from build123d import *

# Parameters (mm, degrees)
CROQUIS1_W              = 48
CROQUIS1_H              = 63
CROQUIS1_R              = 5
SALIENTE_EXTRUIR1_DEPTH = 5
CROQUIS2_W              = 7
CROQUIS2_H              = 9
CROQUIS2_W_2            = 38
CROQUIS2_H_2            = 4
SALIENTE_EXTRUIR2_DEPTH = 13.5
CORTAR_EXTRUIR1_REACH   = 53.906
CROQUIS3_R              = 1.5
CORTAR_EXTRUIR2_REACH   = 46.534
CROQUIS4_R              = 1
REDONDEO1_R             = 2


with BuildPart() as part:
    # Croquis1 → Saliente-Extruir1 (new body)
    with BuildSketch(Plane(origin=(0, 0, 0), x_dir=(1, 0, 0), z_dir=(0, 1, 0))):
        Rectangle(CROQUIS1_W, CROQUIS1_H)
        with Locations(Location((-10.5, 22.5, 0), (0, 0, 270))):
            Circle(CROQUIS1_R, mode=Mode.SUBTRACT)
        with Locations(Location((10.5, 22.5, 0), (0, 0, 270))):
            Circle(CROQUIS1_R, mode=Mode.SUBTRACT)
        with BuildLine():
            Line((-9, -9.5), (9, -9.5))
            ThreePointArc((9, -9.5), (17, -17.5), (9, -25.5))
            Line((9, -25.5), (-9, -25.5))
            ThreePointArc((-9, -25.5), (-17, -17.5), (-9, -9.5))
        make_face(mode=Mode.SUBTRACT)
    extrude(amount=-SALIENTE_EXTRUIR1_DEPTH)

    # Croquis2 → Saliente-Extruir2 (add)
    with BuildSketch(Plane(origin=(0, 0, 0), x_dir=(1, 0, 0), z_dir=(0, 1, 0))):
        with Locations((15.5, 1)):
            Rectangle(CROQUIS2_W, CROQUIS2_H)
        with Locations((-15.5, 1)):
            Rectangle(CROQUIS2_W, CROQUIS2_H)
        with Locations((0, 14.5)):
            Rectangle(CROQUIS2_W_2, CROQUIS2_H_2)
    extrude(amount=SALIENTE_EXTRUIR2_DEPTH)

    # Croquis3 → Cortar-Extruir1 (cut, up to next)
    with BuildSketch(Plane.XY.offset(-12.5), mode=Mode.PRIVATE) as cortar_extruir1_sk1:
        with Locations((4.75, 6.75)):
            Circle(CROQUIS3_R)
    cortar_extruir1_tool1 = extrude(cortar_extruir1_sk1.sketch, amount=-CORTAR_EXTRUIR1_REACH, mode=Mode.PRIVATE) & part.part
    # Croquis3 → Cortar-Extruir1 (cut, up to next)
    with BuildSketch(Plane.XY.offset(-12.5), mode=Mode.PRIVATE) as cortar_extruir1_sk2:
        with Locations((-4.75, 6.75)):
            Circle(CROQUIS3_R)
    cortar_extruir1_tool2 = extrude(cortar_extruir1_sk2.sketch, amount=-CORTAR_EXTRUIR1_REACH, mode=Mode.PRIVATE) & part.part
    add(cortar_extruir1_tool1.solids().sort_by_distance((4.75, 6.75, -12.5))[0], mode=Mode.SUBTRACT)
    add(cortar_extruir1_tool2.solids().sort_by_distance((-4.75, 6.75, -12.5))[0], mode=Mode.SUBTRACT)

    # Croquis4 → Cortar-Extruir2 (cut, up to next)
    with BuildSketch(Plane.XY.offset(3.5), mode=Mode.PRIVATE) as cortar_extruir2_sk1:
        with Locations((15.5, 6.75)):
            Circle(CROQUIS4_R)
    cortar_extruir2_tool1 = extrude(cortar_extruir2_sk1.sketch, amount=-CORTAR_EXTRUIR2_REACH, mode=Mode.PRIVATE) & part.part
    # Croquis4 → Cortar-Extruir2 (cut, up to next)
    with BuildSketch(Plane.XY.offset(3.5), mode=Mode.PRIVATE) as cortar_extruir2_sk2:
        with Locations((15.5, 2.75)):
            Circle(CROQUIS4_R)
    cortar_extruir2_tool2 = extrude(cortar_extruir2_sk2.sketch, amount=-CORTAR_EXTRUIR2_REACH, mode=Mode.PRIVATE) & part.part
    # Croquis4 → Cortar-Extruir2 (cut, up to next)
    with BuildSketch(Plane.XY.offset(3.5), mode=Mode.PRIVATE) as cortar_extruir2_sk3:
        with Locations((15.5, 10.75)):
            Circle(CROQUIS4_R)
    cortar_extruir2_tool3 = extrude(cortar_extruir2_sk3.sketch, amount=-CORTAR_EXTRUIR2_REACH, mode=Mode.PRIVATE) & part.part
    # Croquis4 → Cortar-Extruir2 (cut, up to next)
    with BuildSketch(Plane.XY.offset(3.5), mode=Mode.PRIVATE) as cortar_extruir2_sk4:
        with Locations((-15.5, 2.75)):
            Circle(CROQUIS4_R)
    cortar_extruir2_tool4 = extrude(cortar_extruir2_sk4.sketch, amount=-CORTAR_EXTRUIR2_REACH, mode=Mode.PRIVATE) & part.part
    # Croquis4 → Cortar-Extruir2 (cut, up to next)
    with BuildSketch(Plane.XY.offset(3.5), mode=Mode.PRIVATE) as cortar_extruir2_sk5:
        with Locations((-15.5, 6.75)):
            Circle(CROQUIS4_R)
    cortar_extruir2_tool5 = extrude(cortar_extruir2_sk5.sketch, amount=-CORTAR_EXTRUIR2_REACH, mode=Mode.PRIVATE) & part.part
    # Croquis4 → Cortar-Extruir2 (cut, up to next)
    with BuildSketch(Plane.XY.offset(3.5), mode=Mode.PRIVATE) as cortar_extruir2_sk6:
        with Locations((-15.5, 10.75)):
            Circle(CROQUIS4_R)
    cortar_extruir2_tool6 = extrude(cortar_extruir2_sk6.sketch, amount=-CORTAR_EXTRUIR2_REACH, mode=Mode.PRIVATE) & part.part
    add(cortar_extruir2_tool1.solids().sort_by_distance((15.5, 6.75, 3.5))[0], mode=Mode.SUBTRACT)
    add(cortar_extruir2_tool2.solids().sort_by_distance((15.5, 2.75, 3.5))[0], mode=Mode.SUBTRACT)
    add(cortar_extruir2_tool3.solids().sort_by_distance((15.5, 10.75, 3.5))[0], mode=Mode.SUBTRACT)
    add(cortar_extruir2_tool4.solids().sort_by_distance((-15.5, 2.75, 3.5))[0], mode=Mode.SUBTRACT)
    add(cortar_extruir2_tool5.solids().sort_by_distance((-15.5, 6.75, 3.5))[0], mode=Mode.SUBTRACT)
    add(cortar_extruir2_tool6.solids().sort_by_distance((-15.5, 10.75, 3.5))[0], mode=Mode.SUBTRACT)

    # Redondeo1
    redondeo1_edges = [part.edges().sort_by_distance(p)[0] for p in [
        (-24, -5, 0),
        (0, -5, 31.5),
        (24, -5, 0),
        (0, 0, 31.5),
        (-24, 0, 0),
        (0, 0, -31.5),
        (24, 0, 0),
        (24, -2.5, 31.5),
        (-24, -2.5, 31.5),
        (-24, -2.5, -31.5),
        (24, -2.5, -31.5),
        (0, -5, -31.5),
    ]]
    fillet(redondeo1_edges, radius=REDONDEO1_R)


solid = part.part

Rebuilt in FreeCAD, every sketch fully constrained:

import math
import FreeCAD as App
import Part
import Sketcher

V = App.Vector


def edges_at(feature, points):
    """Names of the edges that pass closest to the given points."""
    edges = feature.Shape.Edges
    near = lambda p: min(range(len(edges)), key=lambda i: edges[i].distToShape(Part.Vertex(*p))[0])
    return sorted({f"Edge{near(p) + 1}" for p in points})

doc = App.newDocument("Part")
body = doc.addObject("PartDesign::Body", "Body")

# Sketch on XZ plane
sketch1 = body.newObject("Sketcher::SketchObject", "Sketch")
sketch1.AttachmentSupport = (doc.getObject("XZ_Plane"), [""])
sketch1.MapMode = "FlatFace"
sketch1.addGeometry(Part.LineSegment(V(-24, -32, 0), V(-24, 32, 0)), False)
sketch1.addGeometry(Part.LineSegment(V(-24, 32, 0), V(24, 32, 0)), False)
sketch1.addGeometry(Part.LineSegment(V(24, 32, 0), V(24, -32, 0)), False)
sketch1.addGeometry(Part.LineSegment(V(24, -32, 0), V(-24, -32, 0)), False)
sketch1.addGeometry(Part.ArcOfCircle(Part.Circle(V(-9, 18, 0), V(0, 0, 1), 8), math.radians(90), math.radians(270)), False)
sketch1.addGeometry(Part.LineSegment(V(-9, 10, 0), V(9, 10, 0)), False)
sketch1.addGeometry(Part.ArcOfCircle(Part.Circle(V(9, 18, 0), V(0, 0, 1), 8), math.radians(-90), math.radians(90)), False)
sketch1.addGeometry(Part.LineSegment(V(9, 26, 0), V(-9, 26, 0)), False)
sketch1.addGeometry(Part.Circle(V(-10, -22, 0), V(0, 0, 1), 5), False)
sketch1.addGeometry(Part.Circle(V(10, -22, 0), V(0, 0, 1), 5), False)
sketch1.addConstraint(Sketcher.Constraint("Coincident", 0, 2, 1, 1))
sketch1.addConstraint(Sketcher.Constraint("Coincident", 1, 2, 2, 1))
sketch1.addConstraint(Sketcher.Constraint("Coincident", 2, 2, 3, 1))
sketch1.addConstraint(Sketcher.Constraint("Coincident", 3, 2, 0, 1))
sketch1.addConstraint(Sketcher.Constraint("Tangent", 4, 2, 5, 1))
sketch1.addConstraint(Sketcher.Constraint("Tangent", 5, 2, 6, 1))
sketch1.addConstraint(Sketcher.Constraint("Tangent", 6, 2, 7, 1))
sketch1.addConstraint(Sketcher.Constraint("Tangent", 7, 2, 4, 1))
sketch1.addConstraint(Sketcher.Constraint("Vertical", 0))
sketch1.addConstraint(Sketcher.Constraint("Horizontal", 1))
sketch1.addConstraint(Sketcher.Constraint("Vertical", 2))
sketch1.addConstraint(Sketcher.Constraint("Horizontal", 3))
sketch1.addConstraint(Sketcher.Constraint("Horizontal", 5))
sketch1.addConstraint(Sketcher.Constraint("Horizontal", 7))
sketch1.addConstraint(Sketcher.Constraint("Equal", 8, 9))
sketch1.addConstraint(Sketcher.Constraint("Symmetric", 0, 2, 2, 2, -1, 1))
sketch1.addConstraint(Sketcher.Constraint("Symmetric", 8, 3, 9, 3, -2))
sketch1.addConstraint(Sketcher.Constraint("Diameter", 8, 10.0))
sketch1.addConstraint(Sketcher.Constraint("Radius", 4, 8.0))
sketch1.addConstraint(Sketcher.Constraint("DistanceX", 1, 1, 1, 2, 48.0))
sketch1.addConstraint(Sketcher.Constraint("DistanceX", 5, 1, 5, 2, 18.0))
sketch1.addConstraint(Sketcher.Constraint("DistanceY", 0, 1, 0, 2, 63.0))
sketch1.addConstraint(Sketcher.Constraint("DistanceX", 4, 3, -1, 1, 9.0))
sketch1.addConstraint(Sketcher.Constraint("DistanceY", 8, 3, 4, 3, 40.0))
sketch1.addConstraint(Sketcher.Constraint("DistanceX", 8, 3, 9, 3, 21.0))
sketch1.addConstraint(Sketcher.Constraint("DistanceY", 4, 3, 0, 2, 14.0))
pad1 = body.newObject("PartDesign::Pad", "Pad")
pad1.Profile = sketch1
pad1.Length = 5

# Sketch on XZ plane
sketch2 = body.newObject("Sketcher::SketchObject", "Sketch001")
sketch2.AttachmentSupport = (doc.getObject("XZ_Plane"), [""])
sketch2.MapMode = "FlatFace"
sketch2.addGeometry(Part.LineSegment(V(12, -5.5, 0), V(12, 3.5, 0)), False)
sketch2.addGeometry(Part.LineSegment(V(12, 3.5, 0), V(19, 3.5, 0)), False)
sketch2.addGeometry(Part.LineSegment(V(19, 3.5, 0), V(19, -5.5, 0)), False)
sketch2.addGeometry(Part.LineSegment(V(19, -5.5, 0), V(12, -5.5, 0)), False)
sketch2.addGeometry(Part.LineSegment(V(-19, -5.5, 0), V(-19, 3.5, 0)), False)
sketch2.addGeometry(Part.LineSegment(V(-19, 3.5, 0), V(-12, 3.5, 0)), False)
sketch2.addGeometry(Part.LineSegment(V(-12, 3.5, 0), V(-12, -5.5, 0)), False)
sketch2.addGeometry(Part.LineSegment(V(-12, -5.5, 0), V(-19, -5.5, 0)), False)
sketch2.addGeometry(Part.LineSegment(V(-19, -16.5, 0), V(-19, -12.5, 0)), False)
sketch2.addGeometry(Part.LineSegment(V(-19, -12.5, 0), V(19, -12.5, 0)), False)
sketch2.addGeometry(Part.LineSegment(V(19, -12.5, 0), V(19, -16.5, 0)), False)
sketch2.addGeometry(Part.LineSegment(V(19, -16.5, 0), V(-19, -16.5, 0)), False)
sketch2.addConstraint(Sketcher.Constraint("Coincident", 0, 2, 1, 1))
sketch2.addConstraint(Sketcher.Constraint("Coincident", 1, 2, 2, 1))
sketch2.addConstraint(Sketcher.Constraint("Coincident", 2, 2, 3, 1))
sketch2.addConstraint(Sketcher.Constraint("Coincident", 3, 2, 0, 1))
sketch2.addConstraint(Sketcher.Constraint("Coincident", 4, 2, 5, 1))
sketch2.addConstraint(Sketcher.Constraint("Coincident", 5, 2, 6, 1))
sketch2.addConstraint(Sketcher.Constraint("Coincident", 6, 2, 7, 1))
sketch2.addConstraint(Sketcher.Constraint("Coincident", 7, 2, 4, 1))
sketch2.addConstraint(Sketcher.Constraint("Coincident", 8, 2, 9, 1))
sketch2.addConstraint(Sketcher.Constraint("Coincident", 9, 2, 10, 1))
sketch2.addConstraint(Sketcher.Constraint("Coincident", 10, 2, 11, 1))
sketch2.addConstraint(Sketcher.Constraint("Coincident", 11, 2, 8, 1))
sketch2.addConstraint(Sketcher.Constraint("Vertical", 0))
sketch2.addConstraint(Sketcher.Constraint("Horizontal", 1))
sketch2.addConstraint(Sketcher.Constraint("Vertical", 2))
sketch2.addConstraint(Sketcher.Constraint("Horizontal", 3))
sketch2.addConstraint(Sketcher.Constraint("Vertical", 4))
sketch2.addConstraint(Sketcher.Constraint("Horizontal", 5))
sketch2.addConstraint(Sketcher.Constraint("Vertical", 6))
sketch2.addConstraint(Sketcher.Constraint("Horizontal", 7))
sketch2.addConstraint(Sketcher.Constraint("Vertical", 8))
sketch2.addConstraint(Sketcher.Constraint("Horizontal", 9))
sketch2.addConstraint(Sketcher.Constraint("Vertical", 10))
sketch2.addConstraint(Sketcher.Constraint("Horizontal", 11))
sketch2.addConstraint(Sketcher.Constraint("Symmetric", 1, 2, 4, 2, -2))
sketch2.addConstraint(Sketcher.Constraint("Symmetric", 3, 2, 6, 2, -2))
sketch2.addConstraint(Sketcher.Constraint("Vertical", 7, 2, 8, 2))
sketch2.addConstraint(Sketcher.Constraint("Vertical", 2, 2, 9, 2))
sketch2.addConstraint(Sketcher.Constraint("DistanceX", 1, 1, 1, 2, 7.0))
sketch2.addConstraint(Sketcher.Constraint("DistanceX", 9, 1, 9, 2, 38.0))
sketch2.addConstraint(Sketcher.Constraint("DistanceY", 0, 1, 0, 2, 9.0))
sketch2.addConstraint(Sketcher.Constraint("DistanceY", 8, 1, 8, 2, 4.0))
sketch2.addConstraint(Sketcher.Constraint("DistanceY", 8, 2, 7, 2, 7.0))
sketch2.addConstraint(Sketcher.Constraint("DistanceY", -1, 1, 0, 2, 3.5))
pad2 = body.newObject("PartDesign::Pad", "Pad001")
pad2.Profile = sketch2
pad2.Length = 13.5
pad2.Reversed = True

# Sketch on XY plane
sketch3 = body.newObject("Sketcher::SketchObject", "Sketch002")
sketch3.AttachmentSupport = (doc.getObject("XY_Plane"), [""])
sketch3.MapMode = "FlatFace"
sketch3.AttachmentOffset = App.Placement(V(0, 0, -12.5), App.Rotation())
sketch3.addGeometry(Part.Circle(V(4.8, 6.8, 0), V(0, 0, 1), 1.5), False)
sketch3.addConstraint(Sketcher.Constraint("Diameter", 0, 3.0))
sketch3.addConstraint(Sketcher.Constraint("DistanceX", -1, 1, 0, 3, 4.75))
sketch3.addConstraint(Sketcher.Constraint("DistanceY", -1, 1, 0, 3, 6.75))
pocket1 = body.newObject("PartDesign::Pocket", "Pocket")
pocket1.Profile = sketch3
pocket1.Type = "UpToFirst"

# Sketch on XY plane
sketch4 = body.newObject("Sketcher::SketchObject", "Sketch003")
sketch4.AttachmentSupport = (doc.getObject("XY_Plane"), [""])
sketch4.MapMode = "FlatFace"
sketch4.AttachmentOffset = App.Placement(V(0, 0, -12.5), App.Rotation())
sketch4.addGeometry(Part.Circle(V(-4.8, 6.8, 0), V(0, 0, 1), 1.5), False)
sketch4.addConstraint(Sketcher.Constraint("Diameter", 0, 3.0))
sketch4.addConstraint(Sketcher.Constraint("DistanceX", 0, 3, -1, 1, 4.75))
sketch4.addConstraint(Sketcher.Constraint("DistanceY", -1, 1, 0, 3, 6.75))
pocket2 = body.newObject("PartDesign::Pocket", "Pocket001")
pocket2.Profile = sketch4
pocket2.Type = "UpToFirst"

# Sketch on XY plane
sketch5 = body.newObject("Sketcher::SketchObject", "Sketch004")
sketch5.AttachmentSupport = (doc.getObject("XY_Plane"), [""])
sketch5.MapMode = "FlatFace"
sketch5.AttachmentOffset = App.Placement(V(0, 0, 3.5), App.Rotation())
sketch5.addGeometry(Part.Circle(V(15.5, 6.8, 0), V(0, 0, 1), 1), False)
sketch5.addConstraint(Sketcher.Constraint("Diameter", 0, 2.0))
sketch5.addConstraint(Sketcher.Constraint("DistanceX", -1, 1, 0, 3, 15.5))
sketch5.addConstraint(Sketcher.Constraint("DistanceY", -1, 1, 0, 3, 6.75))
pocket3 = body.newObject("PartDesign::Pocket", "Pocket002")
pocket3.Profile = sketch5
pocket3.Type = "UpToFirst"

# Sketch on XY plane
sketch6 = body.newObject("Sketcher::SketchObject", "Sketch005")
sketch6.AttachmentSupport = (doc.getObject("XY_Plane"), [""])
sketch6.MapMode = "FlatFace"
sketch6.AttachmentOffset = App.Placement(V(0, 0, 3.5), App.Rotation())
sketch6.addGeometry(Part.Circle(V(15.5, 2.8, 0), V(0, 0, 1), 1), False)
sketch6.addConstraint(Sketcher.Constraint("Diameter", 0, 2.0))
sketch6.addConstraint(Sketcher.Constraint("DistanceX", -1, 1, 0, 3, 15.5))
sketch6.addConstraint(Sketcher.Constraint("DistanceY", -1, 1, 0, 3, 2.75))
pocket4 = body.newObject("PartDesign::Pocket", "Pocket003")
pocket4.Profile = sketch6
pocket4.Type = "UpToFirst"

# Sketch on XY plane
sketch7 = body.newObject("Sketcher::SketchObject", "Sketch006")
sketch7.AttachmentSupport = (doc.getObject("XY_Plane"), [""])
sketch7.MapMode = "FlatFace"
sketch7.AttachmentOffset = App.Placement(V(0, 0, 3.5), App.Rotation())
sketch7.addGeometry(Part.Circle(V(15.5, 10.8, 0), V(0, 0, 1), 1), False)
sketch7.addConstraint(Sketcher.Constraint("Diameter", 0, 2.0))
sketch7.addConstraint(Sketcher.Constraint("DistanceX", -1, 1, 0, 3, 15.5))
sketch7.addConstraint(Sketcher.Constraint("DistanceY", -1, 1, 0, 3, 10.75))
pocket5 = body.newObject("PartDesign::Pocket", "Pocket004")
pocket5.Profile = sketch7
pocket5.Type = "UpToFirst"

# Sketch on XY plane
sketch8 = body.newObject("Sketcher::SketchObject", "Sketch007")
sketch8.AttachmentSupport = (doc.getObject("XY_Plane"), [""])
sketch8.MapMode = "FlatFace"
sketch8.AttachmentOffset = App.Placement(V(0, 0, 3.5), App.Rotation())
sketch8.addGeometry(Part.Circle(V(-15.5, 2.8, 0), V(0, 0, 1), 1), False)
sketch8.addConstraint(Sketcher.Constraint("Diameter", 0, 2.0))
sketch8.addConstraint(Sketcher.Constraint("DistanceX", 0, 3, -1, 1, 15.5))
sketch8.addConstraint(Sketcher.Constraint("DistanceY", -1, 1, 0, 3, 2.75))
pocket6 = body.newObject("PartDesign::Pocket", "Pocket005")
pocket6.Profile = sketch8
pocket6.Type = "UpToFirst"

# Sketch on XY plane
sketch9 = body.newObject("Sketcher::SketchObject", "Sketch008")
sketch9.AttachmentSupport = (doc.getObject("XY_Plane"), [""])
sketch9.MapMode = "FlatFace"
sketch9.AttachmentOffset = App.Placement(V(0, 0, 3.5), App.Rotation())
sketch9.addGeometry(Part.Circle(V(-15.5, 6.8, 0), V(0, 0, 1), 1), False)
sketch9.addConstraint(Sketcher.Constraint("Diameter", 0, 2.0))
sketch9.addConstraint(Sketcher.Constraint("DistanceX", 0, 3, -1, 1, 15.5))
sketch9.addConstraint(Sketcher.Constraint("DistanceY", -1, 1, 0, 3, 6.75))
pocket7 = body.newObject("PartDesign::Pocket", "Pocket006")
pocket7.Profile = sketch9
pocket7.Type = "UpToFirst"

# Sketch on XY plane
sketch10 = body.newObject("Sketcher::SketchObject", "Sketch009")
sketch10.AttachmentSupport = (doc.getObject("XY_Plane"), [""])
sketch10.MapMode = "FlatFace"
sketch10.AttachmentOffset = App.Placement(V(0, 0, 3.5), App.Rotation())
sketch10.addGeometry(Part.Circle(V(-15.5, 10.8, 0), V(0, 0, 1), 1), False)
sketch10.addConstraint(Sketcher.Constraint("Diameter", 0, 2.0))
sketch10.addConstraint(Sketcher.Constraint("DistanceX", 0, 3, -1, 1, 15.5))
sketch10.addConstraint(Sketcher.Constraint("DistanceY", -1, 1, 0, 3, 10.75))
pocket8 = body.newObject("PartDesign::Pocket", "Pocket007")
pocket8.Profile = sketch10
pocket8.Type = "UpToFirst"
doc.recompute()

fillet = body.newObject("PartDesign::Fillet", "Fillet")
fillet.Base = (pocket8, edges_at(pocket8, [
    (-24, -5, 0),
    (0, -5, 31.5),
    (24, -5, 0),
    (0, 0, 31.5),
    (-24, 0, 0),
    (0, 0, -31.5),
    (24, 0, 0),
    (24, -2.5, 31.5),
    (-24, -2.5, 31.5),
    (-24, -2.5, -31.5),
    (24, -2.5, -31.5),
    (0, -5, -31.5),
]))
fillet.Radius = 2

doc.recompute()
